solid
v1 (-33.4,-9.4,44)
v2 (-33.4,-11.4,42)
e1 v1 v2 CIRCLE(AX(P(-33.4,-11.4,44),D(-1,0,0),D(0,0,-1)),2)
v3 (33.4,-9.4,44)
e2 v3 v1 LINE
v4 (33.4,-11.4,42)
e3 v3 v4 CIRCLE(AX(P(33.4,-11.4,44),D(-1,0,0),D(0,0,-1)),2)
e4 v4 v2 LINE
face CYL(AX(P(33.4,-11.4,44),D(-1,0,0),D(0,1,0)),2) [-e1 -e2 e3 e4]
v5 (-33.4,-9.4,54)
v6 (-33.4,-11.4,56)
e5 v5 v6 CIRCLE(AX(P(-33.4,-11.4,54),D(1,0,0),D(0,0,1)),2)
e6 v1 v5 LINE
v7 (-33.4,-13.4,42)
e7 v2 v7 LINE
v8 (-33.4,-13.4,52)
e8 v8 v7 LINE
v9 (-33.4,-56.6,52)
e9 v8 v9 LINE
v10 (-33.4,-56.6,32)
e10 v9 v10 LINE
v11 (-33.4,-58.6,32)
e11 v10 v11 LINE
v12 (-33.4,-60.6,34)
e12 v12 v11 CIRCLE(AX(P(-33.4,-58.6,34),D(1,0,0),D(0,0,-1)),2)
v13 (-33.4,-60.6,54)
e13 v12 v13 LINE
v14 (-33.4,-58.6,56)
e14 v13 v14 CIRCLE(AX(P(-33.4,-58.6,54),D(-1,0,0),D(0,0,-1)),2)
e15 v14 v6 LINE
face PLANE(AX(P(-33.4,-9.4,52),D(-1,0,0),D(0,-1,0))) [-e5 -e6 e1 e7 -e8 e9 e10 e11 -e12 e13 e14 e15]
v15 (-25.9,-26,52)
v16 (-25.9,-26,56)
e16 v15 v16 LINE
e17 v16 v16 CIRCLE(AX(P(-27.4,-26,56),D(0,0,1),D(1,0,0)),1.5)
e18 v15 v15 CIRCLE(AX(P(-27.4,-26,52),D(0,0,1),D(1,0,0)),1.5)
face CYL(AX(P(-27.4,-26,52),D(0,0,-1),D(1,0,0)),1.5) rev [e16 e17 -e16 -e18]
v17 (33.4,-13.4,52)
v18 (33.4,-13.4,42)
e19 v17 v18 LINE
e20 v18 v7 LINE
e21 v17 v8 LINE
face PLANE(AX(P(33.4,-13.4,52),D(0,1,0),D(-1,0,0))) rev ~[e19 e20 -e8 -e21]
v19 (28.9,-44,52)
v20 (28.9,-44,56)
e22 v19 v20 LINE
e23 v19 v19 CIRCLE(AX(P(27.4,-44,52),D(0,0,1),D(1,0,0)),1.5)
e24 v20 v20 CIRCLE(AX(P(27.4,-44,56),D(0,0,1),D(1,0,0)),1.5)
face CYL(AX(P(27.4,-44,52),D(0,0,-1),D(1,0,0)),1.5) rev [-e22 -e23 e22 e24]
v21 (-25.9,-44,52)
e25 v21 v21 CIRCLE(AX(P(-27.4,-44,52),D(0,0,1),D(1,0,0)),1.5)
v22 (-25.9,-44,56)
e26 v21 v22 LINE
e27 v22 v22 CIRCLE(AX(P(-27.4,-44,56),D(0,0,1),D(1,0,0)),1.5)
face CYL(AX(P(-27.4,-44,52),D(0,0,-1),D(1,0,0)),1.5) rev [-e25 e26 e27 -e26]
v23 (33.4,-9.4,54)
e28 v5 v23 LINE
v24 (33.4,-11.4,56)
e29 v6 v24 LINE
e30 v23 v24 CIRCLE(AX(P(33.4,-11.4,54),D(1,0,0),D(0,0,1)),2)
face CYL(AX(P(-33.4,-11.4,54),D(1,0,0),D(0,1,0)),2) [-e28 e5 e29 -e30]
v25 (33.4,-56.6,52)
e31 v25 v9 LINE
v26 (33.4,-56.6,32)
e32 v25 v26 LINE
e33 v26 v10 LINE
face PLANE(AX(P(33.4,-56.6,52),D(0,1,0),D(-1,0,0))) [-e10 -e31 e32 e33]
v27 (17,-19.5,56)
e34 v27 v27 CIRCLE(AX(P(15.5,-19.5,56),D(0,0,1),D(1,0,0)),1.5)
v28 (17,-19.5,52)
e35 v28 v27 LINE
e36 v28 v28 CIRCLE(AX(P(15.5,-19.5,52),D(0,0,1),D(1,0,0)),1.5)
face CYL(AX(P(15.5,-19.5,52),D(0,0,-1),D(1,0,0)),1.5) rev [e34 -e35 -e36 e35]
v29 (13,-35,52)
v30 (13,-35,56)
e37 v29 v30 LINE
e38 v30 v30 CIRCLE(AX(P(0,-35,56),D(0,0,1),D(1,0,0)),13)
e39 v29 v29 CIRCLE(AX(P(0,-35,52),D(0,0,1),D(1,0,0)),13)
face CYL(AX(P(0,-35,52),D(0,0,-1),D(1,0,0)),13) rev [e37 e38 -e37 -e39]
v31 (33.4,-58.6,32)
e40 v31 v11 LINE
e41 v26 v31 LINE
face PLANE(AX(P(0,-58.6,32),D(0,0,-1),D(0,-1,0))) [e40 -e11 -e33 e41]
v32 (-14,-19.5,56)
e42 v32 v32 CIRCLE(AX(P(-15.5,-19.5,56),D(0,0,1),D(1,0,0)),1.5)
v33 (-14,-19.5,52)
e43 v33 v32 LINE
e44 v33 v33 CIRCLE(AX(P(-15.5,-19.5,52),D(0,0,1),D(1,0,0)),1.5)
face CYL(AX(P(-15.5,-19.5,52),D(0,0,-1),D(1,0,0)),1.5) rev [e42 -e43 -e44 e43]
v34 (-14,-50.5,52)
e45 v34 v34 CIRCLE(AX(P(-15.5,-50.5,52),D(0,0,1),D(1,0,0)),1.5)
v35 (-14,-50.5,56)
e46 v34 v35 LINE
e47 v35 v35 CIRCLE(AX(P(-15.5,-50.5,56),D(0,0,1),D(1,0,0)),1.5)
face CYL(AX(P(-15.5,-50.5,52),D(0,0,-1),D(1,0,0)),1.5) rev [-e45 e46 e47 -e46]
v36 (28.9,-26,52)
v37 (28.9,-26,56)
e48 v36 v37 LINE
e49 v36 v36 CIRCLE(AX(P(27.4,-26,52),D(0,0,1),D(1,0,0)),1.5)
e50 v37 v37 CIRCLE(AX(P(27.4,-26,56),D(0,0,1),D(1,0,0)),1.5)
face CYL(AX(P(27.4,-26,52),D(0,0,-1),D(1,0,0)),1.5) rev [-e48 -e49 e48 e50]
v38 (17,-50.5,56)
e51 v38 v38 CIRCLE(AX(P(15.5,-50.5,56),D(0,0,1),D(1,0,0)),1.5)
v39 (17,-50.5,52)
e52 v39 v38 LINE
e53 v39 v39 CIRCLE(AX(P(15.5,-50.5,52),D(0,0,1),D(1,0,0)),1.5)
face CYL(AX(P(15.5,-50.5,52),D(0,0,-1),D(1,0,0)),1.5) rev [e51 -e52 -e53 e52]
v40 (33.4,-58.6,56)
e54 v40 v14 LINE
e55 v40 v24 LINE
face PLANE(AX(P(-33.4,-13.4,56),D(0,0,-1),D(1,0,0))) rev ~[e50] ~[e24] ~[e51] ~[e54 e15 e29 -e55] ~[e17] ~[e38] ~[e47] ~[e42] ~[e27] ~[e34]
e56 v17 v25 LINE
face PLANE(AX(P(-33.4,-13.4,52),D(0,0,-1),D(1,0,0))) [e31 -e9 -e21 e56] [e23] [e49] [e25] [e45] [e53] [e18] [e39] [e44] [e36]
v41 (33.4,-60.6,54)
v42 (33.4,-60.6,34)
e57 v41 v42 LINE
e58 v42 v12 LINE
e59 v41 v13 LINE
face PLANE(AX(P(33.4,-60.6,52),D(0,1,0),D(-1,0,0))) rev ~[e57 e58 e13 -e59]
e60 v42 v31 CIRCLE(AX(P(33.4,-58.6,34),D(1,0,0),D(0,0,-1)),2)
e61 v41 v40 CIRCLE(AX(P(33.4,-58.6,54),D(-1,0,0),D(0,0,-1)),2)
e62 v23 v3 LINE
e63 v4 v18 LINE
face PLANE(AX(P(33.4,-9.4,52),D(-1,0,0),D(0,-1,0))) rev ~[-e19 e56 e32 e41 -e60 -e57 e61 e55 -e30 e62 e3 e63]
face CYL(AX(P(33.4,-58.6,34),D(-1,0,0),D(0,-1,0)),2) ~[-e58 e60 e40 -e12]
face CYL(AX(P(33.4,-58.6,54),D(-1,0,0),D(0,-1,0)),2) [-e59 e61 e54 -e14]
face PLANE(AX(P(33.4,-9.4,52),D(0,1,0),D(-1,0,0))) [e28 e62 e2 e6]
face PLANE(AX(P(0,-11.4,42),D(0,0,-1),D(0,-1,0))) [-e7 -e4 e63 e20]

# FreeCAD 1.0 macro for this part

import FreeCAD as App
import Part
import Sketcher

V = App.Vector
Q = App.Units.Quantity


def edges_at(feature, points):
    """Names of the edges that pass closest to the given points."""
    edges = feature.Shape.Edges
    near = lambda p: min(range(len(edges)), key=lambda i: edges[i].distToShape(Part.Vertex(*p))[0])
    return sorted({f"Edge{near(p) + 1}" for p in points})

doc = App.newDocument("Part")
body = doc.addObject("PartDesign::Body", "Body")

sketch1 = body.newObject("Sketcher::SketchObject", "Sketch")
sketch1.AttachmentSupport = (doc.getObject("XY_Plane"), [""])
sketch1.MapMode = "FlatFace"
sketch1.addGeometry([
    Part.LineSegment(V(-33.4, -14, 0), V(-33.4, -56, 0)),
    Part.LineSegment(V(-33.4, -56, 0), V(33.4, -56, 0)),
    Part.LineSegment(V(33.4, -56, 0), V(33.4, -14, 0)),
    Part.LineSegment(V(33.4, -14, 0), V(-33.4, -14, 0)),
    Part.Circle(V(-15.5, -50.5, 0), V(0, 0, 1), 1.5),
    Part.Circle(V(-27.4, -44, 0), V(0, 0, 1), 1.5),
    Part.Circle(V(15.5, -50.5, 0), V(0, 0, 1), 1.5),
    Part.Circle(V(27.4, -44, 0), V(0, 0, 1), 1.5),
    Part.Circle(V(-27.4, -26, 0), V(0, 0, 1), 1.5),
    Part.Circle(V(-15.5, -19.5, 0), V(0, 0, 1), 1.5),
    Part.Circle(V(0, -35, 0), V(0, 0, 1), 13),
    Part.Circle(V(27.4, -26, 0), V(0, 0, 1), 1.5),
    Part.Circle(V(15.5, -19.5, 0), V(0, 0, 1), 1.5),
], False)
sketch1.addConstraint([
    Sketcher.Constraint("Coincident", 0, 2, 1, 1),
    Sketcher.Constraint("Coincident", 1, 2, 2, 1),
    Sketcher.Constraint("Coincident", 2, 2, 3, 1),
    Sketcher.Constraint("Coincident", 3, 2, 0, 1),
    Sketcher.Constraint("Vertical", 0),
    Sketcher.Constraint("Horizontal", 1),
    Sketcher.Constraint("Vertical", 2),
    Sketcher.Constraint("Horizontal", 3),
    Sketcher.Constraint("Equal", 4, 5),
    Sketcher.Constraint("Equal", 5, 6),
    Sketcher.Constraint("Equal", 6, 7),
    Sketcher.Constraint("Equal", 7, 8),
    Sketcher.Constraint("Equal", 8, 9),
    Sketcher.Constraint("Equal", 9, 11),
    Sketcher.Constraint("Equal", 11, 12),
    Sketcher.Constraint("Symmetric", 4, 3, 6, 3, -2),
    Sketcher.Constraint("Symmetric", 5, 3, 7, 3, -2),
    Sketcher.Constraint("Symmetric", 8, 3, 11, 3, -2),
    Sketcher.Constraint("Symmetric", 9, 3, 12, 3, -2),
    Sketcher.Constraint("PointOnObject", 10, 3, -2),
    Sketcher.Constraint("Vertical", 5, 3, 8, 3),
    Sketcher.Constraint("Vertical", 4, 3, 9, 3),
    Sketcher.Constraint("Diameter", 4, Q("3 mm")),
    Sketcher.Constraint("Diameter", 10, Q("26 mm")),
    Sketcher.Constraint("DistanceY", 0, 2, 0, 1, Q("42 mm")),
    Sketcher.Constraint("DistanceX", 1, 1, 1, 2, Q("66.8 mm")),
    Sketcher.Constraint("DistanceY", 5, 3, -1, 1, Q("44 mm")),
    Sketcher.Constraint("DistanceY", 8, 3, -1, 1, Q("26 mm")),
    Sketcher.Constraint("DistanceY", 10, 3, -1, 1, Q("35 mm")),
    Sketcher.Constraint("DistanceY", 0, 2, -1, 1, Q("56 mm")),
    Sketcher.Constraint("DistanceX", 4, 3, 6, 3, Q("31 mm")),
    Sketcher.Constraint("DistanceY", 4, 3, 9, 3, Q("31 mm")),
    Sketcher.Constraint("DistanceX", 0, 2, 5, 3, Q("6 mm")),
    Sketcher.Constraint("DistanceX", 7, 3, 1, 2, Q("6 mm")),
    Sketcher.Constraint("DistanceY", 4, 3, -1, 1, Q("50.5 mm")),
])
pad1 = body.newObject("PartDesign::Pad", "Pad")
pad1.Profile = sketch1
pad1.Length = 4

sketch2 = body.newObject("Sketcher::SketchObject", "Sketch001")
sketch2.AttachmentSupport = (doc.getObject("XZ_Plane"), [""])
sketch2.MapMode = "FlatFace"
sketch2.AttachmentOffset = App.Placement(V(0, 0, 56), App.Rotation())
sketch2.addGeometry([
    Part.LineSegment(V(33.4, 0, 0), V(33.4, 4, 0)),
    Part.LineSegment(V(33.4, 4, 0), V(-33.4, 4, 0)),
    Part.LineSegment(V(-33.4, 4, 0), V(-33.4, 0, 0)),
    Part.LineSegment(V(-33.4, 0, 0), V(33.4, 0, 0)),
], False)
sketch2.addConstraint([
    Sketcher.Constraint("Coincident", 0, 2, 1, 1),
    Sketcher.Constraint("Coincident", 1, 2, 2, 1),
    Sketcher.Constraint("Coincident", 2, 2, 3, 1),
    Sketcher.Constraint("Coincident", 3, 2, 0, 1),
    Sketcher.Constraint("Vertical", 0),
    Sketcher.Constraint("Horizontal", 1),
    Sketcher.Constraint("Vertical", 2),
    Sketcher.Constraint("Horizontal", 3),
    Sketcher.Constraint("Symmetric", 2, 2, 3, 2, -1, 1),
    Sketcher.Constraint("DistanceY", 0, 1, 0, 2, Q("4 mm")),
    Sketcher.Constraint("DistanceX", 1, 2, 1, 1, Q("66.8 mm")),
])
pad2 = body.newObject("PartDesign::Pad", "Pad001")
pad2.Profile = sketch2
pad2.Length = 0.6

sketch3 = body.newObject("Sketcher::SketchObject", "Sketch002")
sketch3.AttachmentSupport = (doc.getObject("XZ_Plane"), [""])
sketch3.MapMode = "FlatFace"
sketch3.AttachmentOffset = App.Placement(V(0, 0, 56.6), App.Rotation())
sketch3.addGeometry([
    Part.LineSegment(V(33.4, 0, 0), V(33.4, 4, 0)),
    Part.LineSegment(V(33.4, 4, 0), V(-33.4, 4, 0)),
    Part.LineSegment(V(-33.4, 4, 0), V(-33.4, 0, 0)),
    Part.LineSegment(V(-33.4, 0, 0), V(33.4, 0, 0)),
], False)
sketch3.addConstraint([
    Sketcher.Constraint("Coincident", 0, 2, 1, 1),
    Sketcher.Constraint("Coincident", 1, 2, 2, 1),
    Sketcher.Constraint("Coincident", 2, 2, 3, 1),
    Sketcher.Constraint("Coincident", 3, 2, 0, 1),
    Sketcher.Constraint("Vertical", 0),
    Sketcher.Constraint("Horizontal", 1),
    Sketcher.Constraint("Vertical", 2),
    Sketcher.Constraint("Horizontal", 3),
    Sketcher.Constraint("Symmetric", 2, 2, 3, 2, -1, 1),
    Sketcher.Constraint("DistanceY", 0, 1, 0, 2, Q("4 mm")),
    Sketcher.Constraint("DistanceX", 1, 2, 1, 1, Q("66.8 mm")),
])
pad3 = body.newObject("PartDesign::Pad", "Pad002")
pad3.Profile = sketch3
pad3.Length = 4

sketch4 = body.newObject("Sketcher::SketchObject", "Sketch003")
sketch4.AttachmentSupport = (doc.getObject("XY_Plane"), [""])
sketch4.MapMode = "FlatFace"
sketch4.addGeometry([
    Part.LineSegment(V(-33.4, -56.6, 0), V(33.4, -56.6, 0)),
    Part.LineSegment(V(33.4, -56.6, 0), V(33.4, -60.6, 0)),
    Part.LineSegment(V(33.4, -60.6, 0), V(-33.4, -60.6, 0)),
    Part.LineSegment(V(-33.4, -60.6, 0), V(-33.4, -56.6, 0)),
], False)
sketch4.addConstraint([
    Sketcher.Constraint("Coincident", 0, 2, 1, 1),
    Sketcher.Constraint("Coincident", 1, 2, 2, 1),
    Sketcher.Constraint("Coincident", 2, 2, 3, 1),
    Sketcher.Constraint("Coincident", 3, 2, 0, 1),
    Sketcher.Constraint("Horizontal", 0),
    Sketcher.Constraint("Vertical", 1),
    Sketcher.Constraint("Horizontal", 2),
    Sketcher.Constraint("Vertical", 3),
    Sketcher.Constraint("DistanceY", 1, 2, 1, 1, Q("4 mm")),
    Sketcher.Constraint("DistanceX", 0, 1, 0, 2, Q("66.8 mm")),
    Sketcher.Constraint("DistanceX", -1, 1, 0, 2, Q("33.4 mm")),
    Sketcher.Constraint("DistanceY", 0, 2, -1, 1, Q("56.6 mm")),
])
pad4 = body.newObject("PartDesign::Pad", "Pad003")
pad4.Profile = sketch4
pad4.Length = 20
pad4.Reversed = True

sketch5 = body.newObject("Sketcher::SketchObject", "Sketch004")
sketch5.AttachmentSupport = (doc.getObject("XZ_Plane"), [""])
sketch5.MapMode = "FlatFace"
sketch5.AttachmentOffset = App.Placement(V(0, 0, 14), App.Rotation())
sketch5.addGeometry([
    Part.LineSegment(V(-33.4, 0, 0), V(-33.4, 4, 0)),
    Part.LineSegment(V(-33.4, 4, 0), V(33.4, 4, 0)),
    Part.LineSegment(V(33.4, 4, 0), V(33.4, 0, 0)),
    Part.LineSegment(V(33.4, 0, 0), V(-33.4, 0, 0)),
], False)
sketch5.addConstraint([
    Sketcher.Constraint("Coincident", 0, 2, 1, 1),
    Sketcher.Constraint("Coincident", 1, 2, 2, 1),
    Sketcher.Constraint("Coincident", 2, 2, 3, 1),
    Sketcher.Constraint("Coincident", 3, 2, 0, 1),
    Sketcher.Constraint("Vertical", 0),
    Sketcher.Constraint("Horizontal", 1),
    Sketcher.Constraint("Vertical", 2),
    Sketcher.Constraint("Horizontal", 3),
    Sketcher.Constraint("Symmetric", 2, 2, 3, 2, -1, 1),
    Sketcher.Constraint("DistanceY", 0, 1, 0, 2, Q("4 mm")),
    Sketcher.Constraint("DistanceX", 1, 1, 1, 2, Q("66.8 mm")),
])
pad5 = body.newObject("PartDesign::Pad", "Pad004")
pad5.Profile = sketch5
pad5.Length = 0.6
pad5.Reversed = True

sketch6 = body.newObject("Sketcher::SketchObject", "Sketch005")
sketch6.AttachmentSupport = (doc.getObject("XZ_Plane"), [""])
sketch6.MapMode = "FlatFace"
sketch6.AttachmentOffset = App.Placement(V(0, 0, 13.4), App.Rotation())
sketch6.addGeometry([
    Part.LineSegment(V(-33.4, 0, 0), V(-33.4, 4, 0)),
    Part.LineSegment(V(-33.4, 4, 0), V(33.4, 4, 0)),
    Part.LineSegment(V(33.4, 4, 0), V(33.4, 0, 0)),
    Part.LineSegment(V(33.4, 0, 0), V(-33.4, 0, 0)),
], False)
sketch6.addConstraint([
    Sketcher.Constraint("Coincident", 0, 2, 1, 1),
    Sketcher.Constraint("Coincident", 1, 2, 2, 1),
    Sketcher.Constraint("Coincident", 2, 2, 3, 1),
    Sketcher.Constraint("Coincident", 3, 2, 0, 1),
    Sketcher.Constraint("Vertical", 0),
    Sketcher.Constraint("Horizontal", 1),
    Sketcher.Constraint("Vertical", 2),
    Sketcher.Constraint("Horizontal", 3),
    Sketcher.Constraint("Symmetric", 2, 2, 3, 2, -1, 1),
    Sketcher.Constraint("DistanceY", 0, 1, 0, 2, Q("4 mm")),
    Sketcher.Constraint("DistanceX", 1, 1, 1, 2, Q("66.8 mm")),
])
pad6 = body.newObject("PartDesign::Pad", "Pad005")
pad6.Profile = sketch6
pad6.Length = 4
pad6.Reversed = True

sketch7 = body.newObject("Sketcher::SketchObject", "Sketch006")
sketch7.AttachmentSupport = (doc.getObject("XY_Plane"), [""])
sketch7.MapMode = "FlatFace"
sketch7.addGeometry([
    Part.LineSegment(V(-33.4, -9.4, 0), V(33.4, -9.4, 0)),
    Part.LineSegment(V(33.4, -9.4, 0), V(33.4, -13.4, 0)),
    Part.LineSegment(V(33.4, -13.4, 0), V(-33.4, -13.4, 0)),
    Part.LineSegment(V(-33.4, -13.4, 0), V(-33.4, -9.4, 0)),
], False)
sketch7.addConstraint([
    Sketcher.Constraint("Coincident", 0, 2, 1, 1),
    Sketcher.Constraint("Coincident", 1, 2, 2, 1),
    Sketcher.Constraint("Coincident", 2, 2, 3, 1),
    Sketcher.Constraint("Coincident", 3, 2, 0, 1),
    Sketcher.Constraint("Horizontal", 0),
    Sketcher.Constraint("Vertical", 1),
    Sketcher.Constraint("Horizontal", 2),
    Sketcher.Constraint("Vertical", 3),
    Sketcher.Constraint("DistanceY", 1, 2, 1, 1, Q("4 mm")),
    Sketcher.Constraint("DistanceX", 0, 1, 0, 2, Q("66.8 mm")),
    Sketcher.Constraint("DistanceX", -1, 1, 0, 2, Q("33.4 mm")),
    Sketcher.Constraint("DistanceY", 0, 2, -1, 1, Q("9.4 mm")),
])
pad7 = body.newObject("PartDesign::Pad", "Pad006")
pad7.Profile = sketch7
pad7.Length = 10
pad7.Reversed = True
doc.recompute()

fillet = body.newObject("PartDesign::Fillet", "Fillet")
fillet.Base = (pad7, edges_at(pad7, [
    (0, -60.6, -20),
    (0, -60.6, 4),
    (0, -9.4, 4),
    (0, -9.4, -10),
]))
fillet.Radius = 2
body2 = doc.addObject("PartDesign::Body", "Body001")
doc.recompute()

body.Placement = App.Placement(V(0, 0, 52), App.Rotation(V(0, 0, 1), 0))
boolean = body2.newObject("PartDesign::Boolean", "Boolean")
boolean.Type = "Fuse"
boolean.addObjects([body])

doc.recompute()
